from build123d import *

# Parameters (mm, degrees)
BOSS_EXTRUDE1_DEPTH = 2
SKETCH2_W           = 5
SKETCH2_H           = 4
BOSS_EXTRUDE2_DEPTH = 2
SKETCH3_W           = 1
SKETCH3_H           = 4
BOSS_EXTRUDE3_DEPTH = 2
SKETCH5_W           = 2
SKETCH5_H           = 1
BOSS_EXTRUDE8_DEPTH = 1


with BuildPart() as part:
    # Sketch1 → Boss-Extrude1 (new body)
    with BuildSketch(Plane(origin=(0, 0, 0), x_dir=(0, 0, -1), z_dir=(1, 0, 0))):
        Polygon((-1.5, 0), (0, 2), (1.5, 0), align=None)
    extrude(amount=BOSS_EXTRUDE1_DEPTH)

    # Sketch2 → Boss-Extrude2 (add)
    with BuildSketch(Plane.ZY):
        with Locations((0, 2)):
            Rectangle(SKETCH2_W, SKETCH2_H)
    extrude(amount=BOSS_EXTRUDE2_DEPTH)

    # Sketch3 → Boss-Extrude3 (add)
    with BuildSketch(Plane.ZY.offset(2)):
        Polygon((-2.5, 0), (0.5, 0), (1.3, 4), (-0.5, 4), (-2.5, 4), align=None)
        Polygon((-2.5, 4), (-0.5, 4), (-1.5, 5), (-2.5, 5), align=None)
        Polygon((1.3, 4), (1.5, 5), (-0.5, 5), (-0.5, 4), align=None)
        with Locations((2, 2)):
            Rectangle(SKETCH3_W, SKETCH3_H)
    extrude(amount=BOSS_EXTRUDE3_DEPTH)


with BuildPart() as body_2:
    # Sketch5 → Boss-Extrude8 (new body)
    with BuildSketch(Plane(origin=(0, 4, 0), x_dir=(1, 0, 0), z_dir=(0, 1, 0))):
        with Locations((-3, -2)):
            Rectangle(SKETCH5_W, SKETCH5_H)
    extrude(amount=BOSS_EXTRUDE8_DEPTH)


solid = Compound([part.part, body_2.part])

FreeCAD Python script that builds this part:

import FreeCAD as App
import Part
import Sketcher
from FreeCAD import Vector
Q = App.Units.Quantity


def add_polygon(sketch, points):
    """Adds a closed chain of lines whose ends are joined by coincident constraints."""
    first, n = sketch.GeometryCount, len(points)
    for a, b in zip(points, points[1:] + points[:1]):
        sketch.addGeometry(Part.LineSegment(App.Vector(*a, 0), App.Vector(*b, 0)), False)
    for i in range(n):
        sketch.addConstraint(Sketcher.Constraint("Coincident", first + i, 2, first + (i + 1) % n, 1))

doc = App.newDocument("Part")
body = doc.addObject("PartDesign::Body", "Body")

# Sketch on YZ plane
sketch1 = body.newObject("Sketcher::SketchObject", "Sketch")
sketch1.AttachmentSupport = (doc.getObject("YZ_Plane"), [""])
sketch1.MapMode = "FlatFace"
add_polygon(sketch1, [(2, 0), (0, 1.5), (0, -1.5)])  # lines 0-2
sketch1.addConstraint([
    Sketcher.Constraint("Vertical", 1),
    Sketcher.Constraint("Symmetric", 0, 2, 1, 2, -1, 1),
    Sketcher.Constraint("PointOnObject", 2, 2, -1),
    Sketcher.Constraint("DistanceY", 1, 2, 1, 1, Q("3 mm")),
    Sketcher.Constraint("DistanceX", -1, 1, 2, 2, Q("2 mm")),
])
pad1 = body.newObject("PartDesign::Pad", "Pad")
pad1.Profile = sketch1
pad1.Length = 2

# Sketch on YZ plane
sketch2 = body.newObject("Sketcher::SketchObject", "Sketch001")
sketch2.AttachmentSupport = (doc.getObject("YZ_Plane"), [""])
sketch2.MapMode = "FlatFace"
add_polygon(sketch2, [(4, -2.5), (0, -2.5), (0, 2.5), (4, 2.5)])  # lines 0-3
sketch2.addConstraint([
    Sketcher.Constraint("Horizontal", 0),
    Sketcher.Constraint("Vertical", 1),
    Sketcher.Constraint("Horizontal", 2),
    Sketcher.Constraint("Vertical", 3),
    Sketcher.Constraint("Symmetric", 0, 2, 1, 2, -1, 1),
    Sketcher.Constraint("DistanceX", 0, 2, 0, 1, Q("4 mm")),
    Sketcher.Constraint("DistanceY", 1, 1, 1, 2, Q("5 mm")),
])
pad2 = body.newObject("PartDesign::Pad", "Pad001")
pad2.Profile = sketch2
pad2.Length = 2
pad2.Reversed = True

# Sketch on YZ plane
sketch3 = body.newObject("Sketcher::SketchObject", "Sketch002")
sketch3.AttachmentSupport = (doc.getObject("YZ_Plane"), [""])
sketch3.MapMode = "FlatFace"
sketch3.AttachmentOffset = App.Placement(Vector(0, 0, -2), App.Rotation())
add_polygon(sketch3, [(0, -2.5), (0, 0.5), (5, 1.5), (5, -0.5), (4, -0.5), (5, -1.5), (5, -2.5)])  # lines 0-6
add_polygon(sketch3, [(4, 1.5), (0, 1.5), (0, 2.5), (4, 2.5)])  # lines 7-10
sketch3.addConstraint([
    Sketcher.Constraint("Vertical", 0),
    Sketcher.Constraint("Vertical", 2),
    Sketcher.Constraint("Horizontal", 3),
    Sketcher.Constraint("Vertical", 5),
    Sketcher.Constraint("Horizontal", 6),
    Sketcher.Constraint("Horizontal", 7),
    Sketcher.Constraint("Vertical", 8),
    Sketcher.Constraint("Horizontal", 9),
    Sketcher.Constraint("Vertical", 10),
    Sketcher.Constraint("Symmetric", 6, 2, 8, 2, -1, 1),
    Sketcher.Constraint("Symmetric", 1, 2, 4, 2, -1),
    Sketcher.Constraint("PointOnObject", 0, 2, -2),
    Sketcher.Constraint("Horizontal", 1, 2, 7, 2),
    Sketcher.Constraint("Vertical", 3, 2, 9, 2),
    Sketcher.Constraint("Equal", 3, 5),
    Sketcher.Constraint("DistanceX", 3, 2, 3, 1, Q("1 mm")),
    Sketcher.Constraint("DistanceX", 6, 2, 6, 1, Q("5 mm")),
    Sketcher.Constraint("DistanceY", 0, 1, 0, 2, Q("3 mm")),
    Sketcher.Constraint("DistanceY", 2, 2, 2, 1, Q("2 mm")),
    Sketcher.Constraint("Angle", 4, Q("-45 deg")),
])
pad3 = body.newObject("PartDesign::Pad", "Pad002")
pad3.Profile = sketch3
pad3.Length = 2
pad3.Reversed = True
body2 = doc.addObject("PartDesign::Body", "Body001")

# Sketch on XZ plane
sketch4 = body2.newObject("Sketcher::SketchObject", "Sketch003")
sketch4.AttachmentSupport = (doc.getObject("XZ_Plane001"), [""])
sketch4.MapMode = "FlatFace"
sketch4.AttachmentOffset = App.Placement(Vector(0, 0, -4), App.Rotation())
add_polygon(sketch4, [(-4, 1.5), (-4, 2.5), (-2, 2.5), (-2, 1.5)])  # lines 0-3
sketch4.addConstraint([
    Sketcher.Constraint("Vertical", 0),
    Sketcher.Constraint("Horizontal", 1),
    Sketcher.Constraint("Vertical", 2),
    Sketcher.Constraint("Horizontal", 3),
    Sketcher.Constraint("DistanceX", 1, 1, 1, 2, Q("2 mm")),
    Sketcher.Constraint("DistanceY", 0, 1, 0, 2, Q("1 mm")),
    Sketcher.Constraint("DistanceX", 0, 2, -1, 1, Q("4 mm")),
    Sketcher.Constraint("DistanceY", -1, 1, 0, 2, Q("2.5 mm")),
])
pad4 = body2.newObject("PartDesign::Pad", "Pad003")
pad4.Profile = sketch4
pad4.Length = 1
pad4.Reversed = True

doc.recompute()
